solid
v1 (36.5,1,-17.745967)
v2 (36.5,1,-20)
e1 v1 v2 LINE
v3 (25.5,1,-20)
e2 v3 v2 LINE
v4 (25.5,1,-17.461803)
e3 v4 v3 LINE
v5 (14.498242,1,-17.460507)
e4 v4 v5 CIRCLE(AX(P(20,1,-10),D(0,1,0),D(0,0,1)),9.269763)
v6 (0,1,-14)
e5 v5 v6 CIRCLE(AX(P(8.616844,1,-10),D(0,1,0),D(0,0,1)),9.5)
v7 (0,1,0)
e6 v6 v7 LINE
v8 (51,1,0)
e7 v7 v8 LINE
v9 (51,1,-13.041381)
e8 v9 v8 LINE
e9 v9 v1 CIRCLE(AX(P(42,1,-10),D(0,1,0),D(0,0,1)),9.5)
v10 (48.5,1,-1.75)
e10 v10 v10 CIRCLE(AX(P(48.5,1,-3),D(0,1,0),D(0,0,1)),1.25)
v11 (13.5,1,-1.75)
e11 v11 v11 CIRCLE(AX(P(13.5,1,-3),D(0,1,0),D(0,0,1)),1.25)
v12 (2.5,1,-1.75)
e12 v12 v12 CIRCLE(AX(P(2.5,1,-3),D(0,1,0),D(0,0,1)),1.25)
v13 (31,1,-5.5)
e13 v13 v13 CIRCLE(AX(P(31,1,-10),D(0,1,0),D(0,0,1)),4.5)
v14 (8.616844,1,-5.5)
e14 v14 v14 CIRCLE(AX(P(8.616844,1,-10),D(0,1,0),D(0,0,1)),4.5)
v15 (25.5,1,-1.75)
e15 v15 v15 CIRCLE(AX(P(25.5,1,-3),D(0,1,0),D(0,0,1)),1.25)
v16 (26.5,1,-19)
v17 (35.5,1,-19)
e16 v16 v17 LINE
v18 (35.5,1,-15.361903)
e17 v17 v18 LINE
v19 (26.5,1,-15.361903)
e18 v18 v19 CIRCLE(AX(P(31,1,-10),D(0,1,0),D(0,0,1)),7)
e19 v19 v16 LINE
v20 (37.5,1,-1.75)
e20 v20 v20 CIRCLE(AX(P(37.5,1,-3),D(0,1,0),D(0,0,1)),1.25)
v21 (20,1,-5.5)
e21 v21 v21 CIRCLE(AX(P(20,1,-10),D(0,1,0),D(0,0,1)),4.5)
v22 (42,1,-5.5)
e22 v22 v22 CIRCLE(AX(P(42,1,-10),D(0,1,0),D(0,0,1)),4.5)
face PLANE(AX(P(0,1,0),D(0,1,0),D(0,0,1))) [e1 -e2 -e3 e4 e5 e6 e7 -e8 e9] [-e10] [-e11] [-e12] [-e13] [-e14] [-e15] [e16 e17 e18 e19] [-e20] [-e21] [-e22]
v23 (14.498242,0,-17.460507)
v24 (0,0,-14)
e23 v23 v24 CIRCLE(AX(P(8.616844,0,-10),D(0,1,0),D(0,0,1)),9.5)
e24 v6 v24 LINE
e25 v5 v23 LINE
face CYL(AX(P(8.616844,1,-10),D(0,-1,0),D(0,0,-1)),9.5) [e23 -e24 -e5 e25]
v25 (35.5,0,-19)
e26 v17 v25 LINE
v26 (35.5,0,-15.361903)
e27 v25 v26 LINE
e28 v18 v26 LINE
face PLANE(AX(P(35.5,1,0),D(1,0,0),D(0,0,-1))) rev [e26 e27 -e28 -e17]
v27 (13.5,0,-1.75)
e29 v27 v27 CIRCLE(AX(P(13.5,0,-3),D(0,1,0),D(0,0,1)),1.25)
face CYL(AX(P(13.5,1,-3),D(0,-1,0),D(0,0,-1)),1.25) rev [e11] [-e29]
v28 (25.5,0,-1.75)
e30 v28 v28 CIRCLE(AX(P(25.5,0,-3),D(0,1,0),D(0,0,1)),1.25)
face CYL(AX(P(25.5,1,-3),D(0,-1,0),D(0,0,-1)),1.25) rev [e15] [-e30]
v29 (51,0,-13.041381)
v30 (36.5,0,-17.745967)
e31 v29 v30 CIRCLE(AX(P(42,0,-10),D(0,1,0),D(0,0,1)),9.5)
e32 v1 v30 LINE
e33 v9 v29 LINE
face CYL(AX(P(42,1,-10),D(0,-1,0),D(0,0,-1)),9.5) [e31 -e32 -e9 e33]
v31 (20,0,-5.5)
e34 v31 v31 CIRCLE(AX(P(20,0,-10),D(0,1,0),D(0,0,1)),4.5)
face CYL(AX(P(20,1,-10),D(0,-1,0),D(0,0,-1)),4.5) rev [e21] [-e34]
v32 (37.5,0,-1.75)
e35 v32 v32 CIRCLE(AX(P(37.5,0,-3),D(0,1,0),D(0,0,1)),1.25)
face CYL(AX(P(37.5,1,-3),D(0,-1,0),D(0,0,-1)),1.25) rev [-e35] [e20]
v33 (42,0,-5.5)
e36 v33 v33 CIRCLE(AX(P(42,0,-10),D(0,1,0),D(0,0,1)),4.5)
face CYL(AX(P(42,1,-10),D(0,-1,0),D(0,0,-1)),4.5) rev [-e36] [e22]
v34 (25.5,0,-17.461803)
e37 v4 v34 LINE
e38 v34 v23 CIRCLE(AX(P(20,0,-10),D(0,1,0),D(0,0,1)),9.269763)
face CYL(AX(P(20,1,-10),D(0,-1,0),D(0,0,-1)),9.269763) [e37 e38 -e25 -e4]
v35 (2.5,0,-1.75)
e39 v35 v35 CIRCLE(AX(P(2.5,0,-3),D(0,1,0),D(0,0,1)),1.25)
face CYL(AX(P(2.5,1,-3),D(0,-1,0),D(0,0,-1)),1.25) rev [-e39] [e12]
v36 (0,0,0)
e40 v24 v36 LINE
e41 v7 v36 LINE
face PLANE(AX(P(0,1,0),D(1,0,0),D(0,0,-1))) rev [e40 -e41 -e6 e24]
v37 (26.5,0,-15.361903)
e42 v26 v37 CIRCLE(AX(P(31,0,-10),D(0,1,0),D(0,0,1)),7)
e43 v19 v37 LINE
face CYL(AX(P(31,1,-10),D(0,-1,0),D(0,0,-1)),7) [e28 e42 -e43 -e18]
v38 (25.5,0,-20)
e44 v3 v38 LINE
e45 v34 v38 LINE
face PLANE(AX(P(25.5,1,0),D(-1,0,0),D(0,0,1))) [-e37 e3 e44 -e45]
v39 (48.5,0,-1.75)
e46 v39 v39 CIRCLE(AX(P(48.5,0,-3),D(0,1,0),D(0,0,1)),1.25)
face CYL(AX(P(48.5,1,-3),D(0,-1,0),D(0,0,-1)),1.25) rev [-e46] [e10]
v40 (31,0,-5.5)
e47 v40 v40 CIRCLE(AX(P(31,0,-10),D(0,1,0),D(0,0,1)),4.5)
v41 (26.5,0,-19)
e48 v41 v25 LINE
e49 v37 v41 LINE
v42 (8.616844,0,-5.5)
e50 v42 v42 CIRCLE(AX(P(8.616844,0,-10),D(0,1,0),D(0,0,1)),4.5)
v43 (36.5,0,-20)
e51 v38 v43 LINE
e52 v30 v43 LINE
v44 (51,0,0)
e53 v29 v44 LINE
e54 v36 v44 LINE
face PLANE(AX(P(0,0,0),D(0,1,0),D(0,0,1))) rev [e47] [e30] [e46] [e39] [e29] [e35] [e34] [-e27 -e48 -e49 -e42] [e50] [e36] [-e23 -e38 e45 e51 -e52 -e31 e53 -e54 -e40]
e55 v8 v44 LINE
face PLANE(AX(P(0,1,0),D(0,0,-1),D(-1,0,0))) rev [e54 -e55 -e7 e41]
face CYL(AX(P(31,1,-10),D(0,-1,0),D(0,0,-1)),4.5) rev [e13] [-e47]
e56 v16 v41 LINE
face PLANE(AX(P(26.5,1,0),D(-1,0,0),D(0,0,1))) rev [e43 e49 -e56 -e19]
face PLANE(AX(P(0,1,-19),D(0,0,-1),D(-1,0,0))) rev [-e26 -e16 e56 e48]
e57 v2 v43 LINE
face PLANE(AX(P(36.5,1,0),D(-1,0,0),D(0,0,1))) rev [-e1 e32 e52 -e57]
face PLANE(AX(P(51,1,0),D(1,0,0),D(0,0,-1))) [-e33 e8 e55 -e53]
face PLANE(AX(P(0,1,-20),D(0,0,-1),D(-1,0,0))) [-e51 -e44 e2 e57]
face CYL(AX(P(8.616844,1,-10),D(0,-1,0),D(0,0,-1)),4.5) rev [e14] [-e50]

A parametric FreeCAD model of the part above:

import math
import FreeCAD as App
import Part
import Sketcher
Q = App.Units.Quantity

doc = App.newDocument("Part")
body = doc.addObject("PartDesign::Body", "Body")

# Sketch on XZ plane
sketch1 = body.newObject("Sketcher::SketchObject", "Sketch")
sketch1.AttachmentSupport = (doc.getObject("XZ_Plane"), [""])
sketch1.MapMode = "FlatFace"
sketch1.addGeometry([
    Part.ArcOfCircle(Part.Circle(App.Vector(20, -10, 0), App.Vector(0, 0, 1), 9.3), math.radians(-126), math.radians(-54)),  # 0
    Part.ArcOfCircle(Part.Circle(App.Vector(8.6, -10, 0), App.Vector(0, 0, 1), 9.5), math.radians(-155), math.radians(-52)),  # 1
    Part.LineSegment(App.Vector(0, -14, 0), App.Vector(0, 0, 0)),  # 2
    Part.LineSegment(App.Vector(0, 0, 0), App.Vector(51, 0, 0)),  # 3
    Part.LineSegment(App.Vector(51, 0, 0), App.Vector(51, -13, 0)),  # 4
    Part.ArcOfCircle(Part.Circle(App.Vector(42, -10, 0), App.Vector(0, 0, 1), 9.5), math.radians(-125), math.radians(-19)),  # 5
    Part.LineSegment(App.Vector(36.5, -17.7, 0), App.Vector(36.5, -20, 0)),  # 6
    Part.LineSegment(App.Vector(36.5, -20, 0), App.Vector(25.5, -20, 0)),  # 7
    Part.LineSegment(App.Vector(25.5, -20, 0), App.Vector(25.5, -17.5, 0)),  # 8
    Part.Circle(App.Vector(2.5, -3, 0), App.Vector(0, 0, 1), 1.2),  # 9
    Part.Circle(App.Vector(13.5, -3, 0), App.Vector(0, 0, 1), 1.2),  # 10
    Part.Circle(App.Vector(8.6, -10, 0), App.Vector(0, 0, 1), 4.5),  # 11
    Part.Circle(App.Vector(20, -10, 0), App.Vector(0, 0, 1), 4.5),  # 12
    Part.Circle(App.Vector(25.5, -3, 0), App.Vector(0, 0, 1), 1.2),  # 13
    Part.Circle(App.Vector(37.5, -3, 0), App.Vector(0, 0, 1), 1.2),  # 14
    Part.Circle(App.Vector(48.5, -3, 0), App.Vector(0, 0, 1), 1.2),  # 15
    Part.Circle(App.Vector(31, -10, 0), App.Vector(0, 0, 1), 4.5),  # 16
    Part.Circle(App.Vector(42, -10, 0), App.Vector(0, 0, 1), 4.5),  # 17
    Part.LineSegment(App.Vector(26.5, -19, 0), App.Vector(35.5, -19, 0)),  # 18
    Part.LineSegment(App.Vector(35.5, -19, 0), App.Vector(35.5, -15.4, 0)),  # 19
    Part.ArcOfCircle(Part.Circle(App.Vector(31, -10, 0), App.Vector(0, 0, 1), 7), math.radians(-130), math.radians(-50)),  # 20
    Part.LineSegment(App.Vector(26.5, -15.4, 0), App.Vector(26.5, -19, 0)),  # 21
], False)
sketch1.addConstraint([
    Sketcher.Constraint("Coincident", 0, 1, 1, 2),
    Sketcher.Constraint("Coincident", 1, 1, 2, 1),
    Sketcher.Constraint("Coincident", 2, 2, 3, 1),
    Sketcher.Constraint("Coincident", 3, 2, 4, 1),
    Sketcher.Constraint("Coincident", 4, 2, 5, 2),
    Sketcher.Constraint("Coincident", 5, 1, 6, 1),
    Sketcher.Constraint("Coincident", 6, 2, 7, 1),
    Sketcher.Constraint("Coincident", 7, 2, 8, 1),
    Sketcher.Constraint("Coincident", 8, 2, 0, 2),
    Sketcher.Constraint("Coincident", 18, 2, 19, 1),
    Sketcher.Constraint("Coincident", 19, 2, 20, 2),
    Sketcher.Constraint("Coincident", 20, 1, 21, 1),
    Sketcher.Constraint("Coincident", 21, 2, 18, 1),
    Sketcher.Constraint("Vertical", 2),
    Sketcher.Constraint("Horizontal", 3),
    Sketcher.Constraint("Vertical", 4),
    Sketcher.Constraint("Vertical", 6),
    Sketcher.Constraint("Horizontal", 7),
    Sketcher.Constraint("Vertical", 8),
    Sketcher.Constraint("Horizontal", 18),
    Sketcher.Constraint("Vertical", 19),
    Sketcher.Constraint("Vertical", 21),
    Sketcher.Constraint("Coincident", 2, 2, -1, 1),
    Sketcher.Constraint("Coincident", 11, 3, 1, 3),
    Sketcher.Constraint("Coincident", 12, 3, 0, 3),
    Sketcher.Constraint("Coincident", 17, 3, 5, 3),
    Sketcher.Constraint("Coincident", 20, 3, 16, 3),
    Sketcher.Constraint("Equal", 1, 5),
    Sketcher.Constraint("Equal", 9, 10),
    Sketcher.Constraint("Equal", 11, 12),
    Sketcher.Constraint("Equal", 10, 13),
    Sketcher.Constraint("Equal", 13, 14),
    Sketcher.Constraint("Equal", 14, 15),
    Sketcher.Constraint("Equal", 12, 16),
    Sketcher.Constraint("Equal", 16, 17),
    Sketcher.Constraint("Horizontal", 0, 3, 1, 3),
    Sketcher.Constraint("Horizontal", 1, 3, 5, 3),
    Sketcher.Constraint("Horizontal", 9, 3, 10, 3),
    Sketcher.Constraint("Horizontal", 10, 3, 13, 3),
    Sketcher.Constraint("Horizontal", 13, 3, 14, 3),
    Sketcher.Constraint("Horizontal", 14, 3, 15, 3),
    Sketcher.Constraint("Horizontal", 12, 3, 16, 3),
    Sketcher.Constraint("Horizontal", 19, 2, 20, 1),
    Sketcher.Constraint("Vertical", 13, 3, 7, 2),
    Sketcher.Constraint("Diameter", 11, Q("9 mm")),
    Sketcher.Constraint("Radius", 20, Q("7 mm")),
    Sketcher.Constraint("Diameter", 9, Q("2.5 mm")),
    Sketcher.Constraint("Radius", 1, Q("9.5 mm")),
    Sketcher.Constraint("DistanceX", 3, 1, 3, 2, Q("51 mm")),
    Sketcher.Constraint("DistanceX", 7, 2, 7, 1, Q("11 mm")),
    Sketcher.Constraint("DistanceX", 18, 1, 18, 2, Q("9 mm")),
    Sketcher.Constraint("DistanceY", 2, 1, 2, 2, Q("14 mm")),
    Sketcher.Constraint("DistanceX", -1, 1, 0, 3, Q("20 mm")),
    Sketcher.Constraint("DistanceY", 0, 3, -1, 1, Q("10 mm")),
    Sketcher.Constraint("DistanceX", -1, 1, 5, 3, Q("42 mm")),
    Sketcher.Constraint("DistanceY", 9, 3, -1, 1, Q("3 mm")),
    Sketcher.Constraint("DistanceX", -1, 1, 16, 3, Q("31 mm")),
    Sketcher.Constraint("DistanceY", 6, 2, -1, 1, Q("20 mm")),
    Sketcher.Constraint("DistanceY", 18, 2, -1, 1, Q("19 mm")),
    Sketcher.Constraint("DistanceX", 9, 3, 10, 3, Q("11 mm")),
    Sketcher.Constraint("DistanceX", 10, 3, 13, 3, Q("12 mm")),
    Sketcher.Constraint("DistanceX", 13, 3, 14, 3, Q("12 mm")),
    Sketcher.Constraint("DistanceX", 14, 3, 15, 3, Q("11 mm")),
    Sketcher.Constraint("DistanceX", 18, 2, 6, 2, Q("1 mm")),
    Sketcher.Constraint("Radius", 0, Q("9.269763 mm")),
])
pad1 = body.newObject("PartDesign::Pad", "Pad")
pad1.Profile = sketch1
pad1.Length = 1
pad1.Reversed = True

doc.recompute()
